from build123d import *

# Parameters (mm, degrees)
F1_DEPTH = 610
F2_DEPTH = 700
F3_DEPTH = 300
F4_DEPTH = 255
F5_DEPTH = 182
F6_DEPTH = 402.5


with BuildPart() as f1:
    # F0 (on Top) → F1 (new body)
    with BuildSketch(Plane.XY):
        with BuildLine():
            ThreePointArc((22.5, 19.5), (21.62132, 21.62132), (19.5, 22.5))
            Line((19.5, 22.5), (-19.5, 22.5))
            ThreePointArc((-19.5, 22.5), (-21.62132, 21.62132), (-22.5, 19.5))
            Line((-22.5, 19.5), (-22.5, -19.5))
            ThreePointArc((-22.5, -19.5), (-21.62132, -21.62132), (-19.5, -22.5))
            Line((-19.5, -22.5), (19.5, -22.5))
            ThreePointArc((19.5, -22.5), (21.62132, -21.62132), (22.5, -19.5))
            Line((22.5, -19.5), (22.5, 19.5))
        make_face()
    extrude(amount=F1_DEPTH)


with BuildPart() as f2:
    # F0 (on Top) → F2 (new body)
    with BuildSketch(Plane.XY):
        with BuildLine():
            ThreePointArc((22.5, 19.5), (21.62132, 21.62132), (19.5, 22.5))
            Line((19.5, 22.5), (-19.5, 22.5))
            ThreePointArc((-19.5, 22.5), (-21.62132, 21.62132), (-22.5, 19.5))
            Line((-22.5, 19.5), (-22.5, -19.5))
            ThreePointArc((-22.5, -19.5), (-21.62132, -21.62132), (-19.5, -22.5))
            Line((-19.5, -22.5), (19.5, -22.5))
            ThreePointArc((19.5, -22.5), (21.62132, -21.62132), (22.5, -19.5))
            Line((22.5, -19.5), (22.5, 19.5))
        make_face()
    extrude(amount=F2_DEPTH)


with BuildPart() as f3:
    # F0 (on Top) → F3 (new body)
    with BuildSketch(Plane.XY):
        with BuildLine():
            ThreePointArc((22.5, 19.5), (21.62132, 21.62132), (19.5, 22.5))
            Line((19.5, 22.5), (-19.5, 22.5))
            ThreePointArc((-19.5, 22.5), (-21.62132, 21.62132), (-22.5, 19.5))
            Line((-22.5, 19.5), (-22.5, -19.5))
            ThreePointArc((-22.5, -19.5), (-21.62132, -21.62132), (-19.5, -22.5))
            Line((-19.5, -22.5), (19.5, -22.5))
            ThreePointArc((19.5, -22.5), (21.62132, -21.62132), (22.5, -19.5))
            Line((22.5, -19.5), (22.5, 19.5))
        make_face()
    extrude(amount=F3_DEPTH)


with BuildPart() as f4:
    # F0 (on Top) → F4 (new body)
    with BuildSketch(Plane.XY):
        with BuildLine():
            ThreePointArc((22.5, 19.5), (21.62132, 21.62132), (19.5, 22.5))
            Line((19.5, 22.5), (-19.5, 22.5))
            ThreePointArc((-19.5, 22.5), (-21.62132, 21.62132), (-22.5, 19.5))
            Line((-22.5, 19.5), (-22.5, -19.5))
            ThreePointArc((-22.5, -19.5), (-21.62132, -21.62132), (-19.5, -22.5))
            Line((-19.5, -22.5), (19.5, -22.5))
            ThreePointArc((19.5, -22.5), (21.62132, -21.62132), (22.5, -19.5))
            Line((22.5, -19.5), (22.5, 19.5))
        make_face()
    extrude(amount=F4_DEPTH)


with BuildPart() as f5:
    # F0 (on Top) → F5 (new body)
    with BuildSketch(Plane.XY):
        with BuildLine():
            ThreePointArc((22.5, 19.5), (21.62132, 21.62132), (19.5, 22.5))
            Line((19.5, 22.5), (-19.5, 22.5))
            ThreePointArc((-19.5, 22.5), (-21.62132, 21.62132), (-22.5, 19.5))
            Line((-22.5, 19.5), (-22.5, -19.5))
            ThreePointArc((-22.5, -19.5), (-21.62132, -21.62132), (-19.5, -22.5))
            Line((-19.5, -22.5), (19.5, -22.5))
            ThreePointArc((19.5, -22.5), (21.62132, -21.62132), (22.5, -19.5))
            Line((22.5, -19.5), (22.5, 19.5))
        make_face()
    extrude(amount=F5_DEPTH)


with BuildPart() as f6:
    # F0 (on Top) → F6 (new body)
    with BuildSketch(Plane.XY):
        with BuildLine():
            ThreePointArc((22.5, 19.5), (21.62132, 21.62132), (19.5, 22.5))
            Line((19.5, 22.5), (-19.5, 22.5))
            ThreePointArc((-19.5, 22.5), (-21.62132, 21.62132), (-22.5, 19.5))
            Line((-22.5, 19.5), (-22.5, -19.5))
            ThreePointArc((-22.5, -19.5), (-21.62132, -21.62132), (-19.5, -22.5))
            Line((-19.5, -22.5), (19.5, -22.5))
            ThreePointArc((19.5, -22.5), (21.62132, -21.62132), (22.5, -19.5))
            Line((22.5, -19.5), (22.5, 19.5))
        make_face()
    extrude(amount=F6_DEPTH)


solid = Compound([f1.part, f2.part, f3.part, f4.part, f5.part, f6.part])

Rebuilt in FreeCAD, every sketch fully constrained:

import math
import FreeCAD as App
import Part
import Sketcher

doc = App.newDocument("Part")
body = doc.addObject("PartDesign::Body", "Body")

sketch1 = doc.addObject("Sketcher::SketchObject", "Sketch")
body.addObject(sketch1)
sketch1.AttachmentSupport = (doc.XY_Plane, [""])
sketch1.MapMode = "FlatFace"
sketch1.addGeometry([
    Part.ArcOfCircle(Part.Circle(App.Vector(19.5, 19.5, 0), App.Vector(0, 0, 1), 3), math.radians(0), math.radians(90)),
    Part.LineSegment(App.Vector(19.5, 22.5, 0), App.Vector(-19.5, 22.5, 0)),
    Part.ArcOfCircle(Part.Circle(App.Vector(-19.5, 19.5, 0), App.Vector(0, 0, 1), 3), math.radians(90), math.radians(180)),
    Part.LineSegment(App.Vector(-22.5, 19.5, 0), App.Vector(-22.5, -19.5, 0)),
    Part.ArcOfCircle(Part.Circle(App.Vector(-19.5, -19.5, 0), App.Vector(0, 0, 1), 3), math.radians(-180), math.radians(-90)),
    Part.LineSegment(App.Vector(-19.5, -22.5, 0), App.Vector(19.5, -22.5, 0)),
    Part.ArcOfCircle(Part.Circle(App.Vector(19.5, -19.5, 0), App.Vector(0, 0, 1), 3), math.radians(-90), math.radians(0)),
    Part.LineSegment(App.Vector(22.5, -19.5, 0), App.Vector(22.5, 19.5, 0)),
], False)
sketch1.addConstraint([
    Sketcher.Constraint("Tangent", 0, 2, 1, 1),
    Sketcher.Constraint("Tangent", 1, 2, 2, 1),
    Sketcher.Constraint("Tangent", 2, 2, 3, 1),
    Sketcher.Constraint("Tangent", 3, 2, 4, 1),
    Sketcher.Constraint("Tangent", 4, 2, 5, 1),
    Sketcher.Constraint("Tangent", 5, 2, 6, 1),
    Sketcher.Constraint("Tangent", 6, 2, 7, 1),
    Sketcher.Constraint("Tangent", 7, 2, 0, 1),
    Sketcher.Constraint("Horizontal", 1),
    Sketcher.Constraint("Vertical", 3),
    Sketcher.Constraint("Horizontal", 5),
    Sketcher.Constraint("Vertical", 7),
    Sketcher.Constraint("Equal", 0, 2),
    Sketcher.Constraint("Equal", 2, 4),
    Sketcher.Constraint("Equal", 4, 6),
    Sketcher.Constraint("Symmetric", 0, 3, 4, 3, -1, 1),
    Sketcher.Constraint("Equal", 5, 3),
    Sketcher.Constraint("Radius", 0, 3.000001),
    Sketcher.Constraint("DistanceX", 1, 2, 1, 1, 39.0),
])
pad1 = doc.addObject("PartDesign::Pad", "Pad")
body.addObject(pad1)
pad1.Profile = sketch1
pad1.Length = 610
body2 = doc.addObject("PartDesign::Body", "Body001")

sketch2 = doc.addObject("Sketcher::SketchObject", "Sketch001")
body2.addObject(sketch2)
sketch2.AttachmentSupport = (doc.getObject("XY_Plane001"), [""])
sketch2.MapMode = "FlatFace"
sketch2.addGeometry([
    Part.ArcOfCircle(Part.Circle(App.Vector(19.5, 19.5, 0), App.Vector(0, 0, 1), 3), math.radians(0), math.radians(90)),
    Part.LineSegment(App.Vector(19.5, 22.5, 0), App.Vector(-19.5, 22.5, 0)),
    Part.ArcOfCircle(Part.Circle(App.Vector(-19.5, 19.5, 0), App.Vector(0, 0, 1), 3), math.radians(90), math.radians(180)),
    Part.LineSegment(App.Vector(-22.5, 19.5, 0), App.Vector(-22.5, -19.5, 0)),
    Part.ArcOfCircle(Part.Circle(App.Vector(-19.5, -19.5, 0), App.Vector(0, 0, 1), 3), math.radians(-180), math.radians(-90)),
    Part.LineSegment(App.Vector(-19.5, -22.5, 0), App.Vector(19.5, -22.5, 0)),
    Part.ArcOfCircle(Part.Circle(App.Vector(19.5, -19.5, 0), App.Vector(0, 0, 1), 3), math.radians(-90), math.radians(0)),
    Part.LineSegment(App.Vector(22.5, -19.5, 0), App.Vector(22.5, 19.5, 0)),
], False)
sketch2.addConstraint([
    Sketcher.Constraint("Tangent", 0, 2, 1, 1),
    Sketcher.Constraint("Tangent", 1, 2, 2, 1),
    Sketcher.Constraint("Tangent", 2, 2, 3, 1),
    Sketcher.Constraint("Tangent", 3, 2, 4, 1),
    Sketcher.Constraint("Tangent", 4, 2, 5, 1),
    Sketcher.Constraint("Tangent", 5, 2, 6, 1),
    Sketcher.Constraint("Tangent", 6, 2, 7, 1),
    Sketcher.Constraint("Tangent", 7, 2, 0, 1),
    Sketcher.Constraint("Horizontal", 1),
    Sketcher.Constraint("Vertical", 3),
    Sketcher.Constraint("Horizontal", 5),
    Sketcher.Constraint("Vertical", 7),
    Sketcher.Constraint("Equal", 0, 2),
    Sketcher.Constraint("Equal", 2, 4),
    Sketcher.Constraint("Equal", 4, 6),
    Sketcher.Constraint("Symmetric", 0, 3, 4, 3, -1, 1),
    Sketcher.Constraint("Equal", 5, 3),
    Sketcher.Constraint("Radius", 0, 3.000001),
    Sketcher.Constraint("DistanceX", 1, 2, 1, 1, 39.0),
])
pad2 = doc.addObject("PartDesign::Pad", "Pad001")
body2.addObject(pad2)
pad2.Profile = sketch2
pad2.Length = 700
body3 = doc.addObject("PartDesign::Body", "Body002")

sketch3 = doc.addObject("Sketcher::SketchObject", "Sketch002")
body3.addObject(sketch3)
sketch3.AttachmentSupport = (doc.getObject("XY_Plane002"), [""])
sketch3.MapMode = "FlatFace"
sketch3.addGeometry([
    Part.ArcOfCircle(Part.Circle(App.Vector(19.5, 19.5, 0), App.Vector(0, 0, 1), 3), math.radians(0), math.radians(90)),
    Part.LineSegment(App.Vector(19.5, 22.5, 0), App.Vector(-19.5, 22.5, 0)),
    Part.ArcOfCircle(Part.Circle(App.Vector(-19.5, 19.5, 0), App.Vector(0, 0, 1), 3), math.radians(90), math.radians(180)),
    Part.LineSegment(App.Vector(-22.5, 19.5, 0), App.Vector(-22.5, -19.5, 0)),
    Part.ArcOfCircle(Part.Circle(App.Vector(-19.5, -19.5, 0), App.Vector(0, 0, 1), 3), math.radians(-180), math.radians(-90)),
    Part.LineSegment(App.Vector(-19.5, -22.5, 0), App.Vector(19.5, -22.5, 0)),
    Part.ArcOfCircle(Part.Circle(App.Vector(19.5, -19.5, 0), App.Vector(0, 0, 1), 3), math.radians(-90), math.radians(0)),
    Part.LineSegment(App.Vector(22.5, -19.5, 0), App.Vector(22.5, 19.5, 0)),
], False)
sketch3.addConstraint([
    Sketcher.Constraint("Tangent", 0, 2, 1, 1),
    Sketcher.Constraint("Tangent", 1, 2, 2, 1),
    Sketcher.Constraint("Tangent", 2, 2, 3, 1),
    Sketcher.Constraint("Tangent", 3, 2, 4, 1),
    Sketcher.Constraint("Tangent", 4, 2, 5, 1),
    Sketcher.Constraint("Tangent", 5, 2, 6, 1),
    Sketcher.Constraint("Tangent", 6, 2, 7, 1),
    Sketcher.Constraint("Tangent", 7, 2, 0, 1),
    Sketcher.Constraint("Horizontal", 1),
    Sketcher.Constraint("Vertical", 3),
    Sketcher.Constraint("Horizontal", 5),
    Sketcher.Constraint("Vertical", 7),
    Sketcher.Constraint("Equal", 0, 2),
    Sketcher.Constraint("Equal", 2, 4),
    Sketcher.Constraint("Equal", 4, 6),
    Sketcher.Constraint("Symmetric", 0, 3, 4, 3, -1, 1),
    Sketcher.Constraint("Equal", 5, 3),
    Sketcher.Constraint("Radius", 0, 3.000001),
    Sketcher.Constraint("DistanceX", 1, 2, 1, 1, 39.0),
])
pad3 = doc.addObject("PartDesign::Pad", "Pad002")
body3.addObject(pad3)
pad3.Profile = sketch3
pad3.Length = 300
body4 = doc.addObject("PartDesign::Body", "Body003")

sketch4 = doc.addObject("Sketcher::SketchObject", "Sketch003")
body4.addObject(sketch4)
sketch4.AttachmentSupport = (doc.getObject("XY_Plane003"), [""])
sketch4.MapMode = "FlatFace"
sketch4.addGeometry([
    Part.ArcOfCircle(Part.Circle(App.Vector(19.5, 19.5, 0), App.Vector(0, 0, 1), 3), math.radians(0), math.radians(90)),
    Part.LineSegment(App.Vector(19.5, 22.5, 0), App.Vector(-19.5, 22.5, 0)),
    Part.ArcOfCircle(Part.Circle(App.Vector(-19.5, 19.5, 0), App.Vector(0, 0, 1), 3), math.radians(90), math.radians(180)),
    Part.LineSegment(App.Vector(-22.5, 19.5, 0), App.Vector(-22.5, -19.5, 0)),
    Part.ArcOfCircle(Part.Circle(App.Vector(-19.5, -19.5, 0), App.Vector(0, 0, 1), 3), math.radians(-180), math.radians(-90)),
    Part.LineSegment(App.Vector(-19.5, -22.5, 0), App.Vector(19.5, -22.5, 0)),
    Part.ArcOfCircle(Part.Circle(App.Vector(19.5, -19.5, 0), App.Vector(0, 0, 1), 3), math.radians(-90), math.radians(0)),
    Part.LineSegment(App.Vector(22.5, -19.5, 0), App.Vector(22.5, 19.5, 0)),
], False)
sketch4.addConstraint([
    Sketcher.Constraint("Tangent", 0, 2, 1, 1),
    Sketcher.Constraint("Tangent", 1, 2, 2, 1),
    Sketcher.Constraint("Tangent", 2, 2, 3, 1),
    Sketcher.Constraint("Tangent", 3, 2, 4, 1),
    Sketcher.Constraint("Tangent", 4, 2, 5, 1),
    Sketcher.Constraint("Tangent", 5, 2, 6, 1),
    Sketcher.Constraint("Tangent", 6, 2, 7, 1),
    Sketcher.Constraint("Tangent", 7, 2, 0, 1),
    Sketcher.Constraint("Horizontal", 1),
    Sketcher.Constraint("Vertical", 3),
    Sketcher.Constraint("Horizontal", 5),
    Sketcher.Constraint("Vertical", 7),
    Sketcher.Constraint("Equal", 0, 2),
    Sketcher.Constraint("Equal", 2, 4),
    Sketcher.Constraint("Equal", 4, 6),
    Sketcher.Constraint("Symmetric", 0, 3, 4, 3, -1, 1),
    Sketcher.Constraint("Equal", 5, 3),
    Sketcher.Constraint("Radius", 0, 3.000001),
    Sketcher.Constraint("DistanceX", 1, 2, 1, 1, 39.0),
])
pad4 = doc.addObject("PartDesign::Pad", "Pad003")
body4.addObject(pad4)
pad4.Profile = sketch4
pad4.Length = 255
body5 = doc.addObject("PartDesign::Body", "Body004")

sketch5 = doc.addObject("Sketcher::SketchObject", "Sketch004")
body5.addObject(sketch5)
sketch5.AttachmentSupport = (doc.getObject("XY_Plane004"), [""])
sketch5.MapMode = "FlatFace"
sketch5.addGeometry([
    Part.ArcOfCircle(Part.Circle(App.Vector(19.5, 19.5, 0), App.Vector(0, 0, 1), 3), math.radians(0), math.radians(90)),
    Part.LineSegment(App.Vector(19.5, 22.5, 0), App.Vector(-19.5, 22.5, 0)),
    Part.ArcOfCircle(Part.Circle(App.Vector(-19.5, 19.5, 0), App.Vector(0, 0, 1), 3), math.radians(90), math.radians(180)),
    Part.LineSegment(App.Vector(-22.5, 19.5, 0), App.Vector(-22.5, -19.5, 0)),
    Part.ArcOfCircle(Part.Circle(App.Vector(-19.5, -19.5, 0), App.Vector(0, 0, 1), 3), math.radians(-180), math.radians(-90)),
    Part.LineSegment(App.Vector(-19.5, -22.5, 0), App.Vector(19.5, -22.5, 0)),
    Part.ArcOfCircle(Part.Circle(App.Vector(19.5, -19.5, 0), App.Vector(0, 0, 1), 3), math.radians(-90), math.radians(0)),
    Part.LineSegment(App.Vector(22.5, -19.5, 0), App.Vector(22.5, 19.5, 0)),
], False)
sketch5.addConstraint([
    Sketcher.Constraint("Tangent", 0, 2, 1, 1),
    Sketcher.Constraint("Tangent", 1, 2, 2, 1),
    Sketcher.Constraint("Tangent", 2, 2, 3, 1),
    Sketcher.Constraint("Tangent", 3, 2, 4, 1),
    Sketcher.Constraint("Tangent", 4, 2, 5, 1),
    Sketcher.Constraint("Tangent", 5, 2, 6, 1),
    Sketcher.Constraint("Tangent", 6, 2, 7, 1),
    Sketcher.Constraint("Tangent", 7, 2, 0, 1),
    Sketcher.Constraint("Horizontal", 1),
    Sketcher.Constraint("Vertical", 3),
    Sketcher.Constraint("Horizontal", 5),
    Sketcher.Constraint("Vertical", 7),
    Sketcher.Constraint("Equal", 0, 2),
    Sketcher.Constraint("Equal", 2, 4),
    Sketcher.Constraint("Equal", 4, 6),
    Sketcher.Constraint("Symmetric", 0, 3, 4, 3, -1, 1),
    Sketcher.Constraint("Equal", 5, 3),
    Sketcher.Constraint("Radius", 0, 3.000001),
    Sketcher.Constraint("DistanceX", 1, 2, 1, 1, 39.0),
])
pad5 = doc.addObject("PartDesign::Pad", "Pad004")
body5.addObject(pad5)
pad5.Profile = sketch5
pad5.Length = 182
body6 = doc.addObject("PartDesign::Body", "Body005")

sketch6 = doc.addObject("Sketcher::SketchObject", "Sketch005")
body6.addObject(sketch6)
sketch6.AttachmentSupport = (doc.getObject("XY_Plane005"), [""])
sketch6.MapMode = "FlatFace"
sketch6.addGeometry([
    Part.ArcOfCircle(Part.Circle(App.Vector(19.5, 19.5, 0), App.Vector(0, 0, 1), 3), math.radians(0), math.radians(90)),
    Part.LineSegment(App.Vector(19.5, 22.5, 0), App.Vector(-19.5, 22.5, 0)),
    Part.ArcOfCircle(Part.Circle(App.Vector(-19.5, 19.5, 0), App.Vector(0, 0, 1), 3), math.radians(90), math.radians(180)),
    Part.LineSegment(App.Vector(-22.5, 19.5, 0), App.Vector(-22.5, -19.5, 0)),
    Part.ArcOfCircle(Part.Circle(App.Vector(-19.5, -19.5, 0), App.Vector(0, 0, 1), 3), math.radians(-180), math.radians(-90)),
    Part.LineSegment(App.Vector(-19.5, -22.5, 0), App.Vector(19.5, -22.5, 0)),
    Part.ArcOfCircle(Part.Circle(App.Vector(19.5, -19.5, 0), App.Vector(0, 0, 1), 3), math.radians(-90), math.radians(0)),
    Part.LineSegment(App.Vector(22.5, -19.5, 0), App.Vector(22.5, 19.5, 0)),
], False)
sketch6.addConstraint([
    Sketcher.Constraint("Tangent", 0, 2, 1, 1),
    Sketcher.Constraint("Tangent", 1, 2, 2, 1),
    Sketcher.Constraint("Tangent", 2, 2, 3, 1),
    Sketcher.Constraint("Tangent", 3, 2, 4, 1),
    Sketcher.Constraint("Tangent", 4, 2, 5, 1),
    Sketcher.Constraint("Tangent", 5, 2, 6, 1),
    Sketcher.Constraint("Tangent", 6, 2, 7, 1),
    Sketcher.Constraint("Tangent", 7, 2, 0, 1),
    Sketcher.Constraint("Horizontal", 1),
    Sketcher.Constraint("Vertical", 3),
    Sketcher.Constraint("Horizontal", 5),
    Sketcher.Constraint("Vertical", 7),
    Sketcher.Constraint("Equal", 0, 2),
    Sketcher.Constraint("Equal", 2, 4),
    Sketcher.Constraint("Equal", 4, 6),
    Sketcher.Constraint("Symmetric", 0, 3, 4, 3, -1, 1),
    Sketcher.Constraint("Equal", 5, 3),
    Sketcher.Constraint("Radius", 0, 3.000001),
    Sketcher.Constraint("DistanceX", 1, 2, 1, 1, 39.0),
])
pad6 = doc.addObject("PartDesign::Pad", "Pad005")
body6.addObject(pad6)
pad6.Profile = sketch6
pad6.Length = 402.5

doc.recompute()
